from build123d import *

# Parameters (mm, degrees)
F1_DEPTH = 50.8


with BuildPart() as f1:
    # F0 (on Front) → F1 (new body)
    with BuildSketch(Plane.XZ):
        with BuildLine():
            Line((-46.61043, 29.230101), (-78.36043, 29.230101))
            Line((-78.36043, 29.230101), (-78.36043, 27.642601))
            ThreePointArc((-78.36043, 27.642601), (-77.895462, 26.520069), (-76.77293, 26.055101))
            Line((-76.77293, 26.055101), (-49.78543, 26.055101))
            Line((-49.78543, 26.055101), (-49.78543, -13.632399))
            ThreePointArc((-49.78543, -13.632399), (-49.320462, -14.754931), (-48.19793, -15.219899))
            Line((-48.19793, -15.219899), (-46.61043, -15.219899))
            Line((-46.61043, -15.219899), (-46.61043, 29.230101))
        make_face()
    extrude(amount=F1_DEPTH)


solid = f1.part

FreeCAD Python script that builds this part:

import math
import FreeCAD as App
import Part
import Sketcher
from FreeCAD import Vector
Q = App.Units.Quantity

doc = App.newDocument("Part")
body = doc.addObject("PartDesign::Body", "Body")

sketch1 = body.newObject("Sketcher::SketchObject", "Sketch")
sketch1.AttachmentSupport = (doc.getObject("XZ_Plane"), [""])
sketch1.MapMode = "FlatFace"
sketch1.addGeometry([
    Part.LineSegment(Vector(-46.6, 29.2, 0), Vector(-78.4, 29.2, 0)),
    Part.LineSegment(Vector(-78.4, 29.2, 0), Vector(-78.4, 27.6, 0)),
    Part.ArcOfCircle(Part.Circle(Vector(-76.8, 27.6, 0), Vector(0, 0, 1), 1.6), math.radians(-180), math.radians(-90)),
    Part.LineSegment(Vector(-76.8, 26.1, 0), Vector(-49.8, 26.1, 0)),
    Part.LineSegment(Vector(-49.8, 26.1, 0), Vector(-49.8, -13.6, 0)),
    Part.ArcOfCircle(Part.Circle(Vector(-48.2, -13.6, 0), Vector(0, 0, 1), 1.6), math.radians(-180), math.radians(-90)),
    Part.LineSegment(Vector(-48.2, -15.2, 0), Vector(-46.6, -15.2, 0)),
    Part.LineSegment(Vector(-46.6, -15.2, 0), Vector(-46.6, 29.2, 0)),
], False)
sketch1.addConstraint([
    Sketcher.Constraint("Coincident", 0, 2, 1, 1),
    Sketcher.Constraint("Tangent", 1, 2, 2, 1),
    Sketcher.Constraint("Tangent", 2, 2, 3, 1),
    Sketcher.Constraint("Coincident", 3, 2, 4, 1),
    Sketcher.Constraint("Tangent", 4, 2, 5, 1),
    Sketcher.Constraint("Tangent", 5, 2, 6, 1),
    Sketcher.Constraint("Coincident", 6, 2, 7, 1),
    Sketcher.Constraint("Coincident", 7, 2, 0, 1),
    Sketcher.Constraint("Horizontal", 0),
    Sketcher.Constraint("Vertical", 1),
    Sketcher.Constraint("Horizontal", 3),
    Sketcher.Constraint("Vertical", 4),
    Sketcher.Constraint("Horizontal", 6),
    Sketcher.Constraint("Vertical", 7),
    Sketcher.Constraint("Equal", 2, 5),
    Sketcher.Constraint("Equal", 6, 1),
    Sketcher.Constraint("Radius", 2, Q("0.0625 in")),
    Sketcher.Constraint("DistanceX", 0, 2, 0, 1, Q("1.25 in")),
    Sketcher.Constraint("DistanceY", 7, 1, 7, 2, Q("1.75 in")),
    Sketcher.Constraint("DistanceX", 3, 1, 3, 2, Q("1.0625 in")),
    Sketcher.Constraint("DistanceY", -1, 1, 2, 3, 27.642601),
    Sketcher.Constraint("DistanceX", 2, 3, -1, 1, 76.77293),
])
pad1 = body.newObject("PartDesign::Pad", "Pad")
pad1.Profile = sketch1
pad1.Length = Q("2 in")

doc.recompute()
